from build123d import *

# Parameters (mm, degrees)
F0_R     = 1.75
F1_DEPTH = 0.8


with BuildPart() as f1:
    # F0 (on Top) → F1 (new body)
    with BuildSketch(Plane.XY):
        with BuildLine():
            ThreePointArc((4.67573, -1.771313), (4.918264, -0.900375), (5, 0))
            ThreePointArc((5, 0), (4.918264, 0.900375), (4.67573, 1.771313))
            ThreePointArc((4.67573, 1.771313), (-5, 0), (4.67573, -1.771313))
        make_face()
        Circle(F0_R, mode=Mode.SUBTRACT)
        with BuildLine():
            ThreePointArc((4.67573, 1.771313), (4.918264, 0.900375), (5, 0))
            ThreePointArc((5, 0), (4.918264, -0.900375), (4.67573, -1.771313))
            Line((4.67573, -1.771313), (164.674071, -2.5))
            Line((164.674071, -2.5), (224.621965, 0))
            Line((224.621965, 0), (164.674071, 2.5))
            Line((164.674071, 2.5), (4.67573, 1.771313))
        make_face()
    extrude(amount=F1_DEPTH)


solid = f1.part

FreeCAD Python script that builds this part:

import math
import FreeCAD as App
import Part
import Sketcher
from FreeCAD import Vector
Q = App.Units.Quantity

doc = App.newDocument("Part")
body = doc.addObject("PartDesign::Body", "Body")

# Sketch on XY plane
sketch1 = body.newObject("Sketcher::SketchObject", "Sketch")
sketch1.AttachmentSupport = (doc.getObject("XY_Plane"), [""])
sketch1.MapMode = "FlatFace"
sketch1.addGeometry([
    Part.ArcOfCircle(Part.Circle(Vector(0, 0, 0), Vector(0, 0, 1), 5), math.radians(21), math.radians(339)),  # 0
    Part.LineSegment(Vector(4.7, -1.8, 0), Vector(164.7, -2.5, 0)),  # 1
    Part.LineSegment(Vector(164.7, -2.5, 0), Vector(224.6, 0, 0)),  # 2
    Part.LineSegment(Vector(224.6, 0, 0), Vector(164.7, 2.5, 0)),  # 3
    Part.LineSegment(Vector(164.7, 2.5, 0), Vector(4.7, 1.8, 0)),  # 4
    Part.Circle(Vector(0, 0, 0), Vector(0, 0, 1), 1.8),  # 5
], False)
sketch1.addConstraint([
    Sketcher.Constraint("Coincident", 0, 2, 1, 1),
    Sketcher.Constraint("Coincident", 1, 2, 2, 1),
    Sketcher.Constraint("Coincident", 2, 2, 3, 1),
    Sketcher.Constraint("Coincident", 3, 2, 4, 1),
    Sketcher.Constraint("Coincident", 4, 2, 0, 1),
    Sketcher.Constraint("Coincident", 0, 3, -1, 1),
    Sketcher.Constraint("Coincident", 5, 3, -1, 1),
    Sketcher.Constraint("Symmetric", 1, 2, 3, 2, -1),
    Sketcher.Constraint("PointOnObject", 2, 2, -1),
    Sketcher.Constraint("Vertical", 0, 2, 4, 2),
    Sketcher.Constraint("Radius", 0, Q("5 mm")),
    Sketcher.Constraint("Diameter", 5, Q("3.5 mm")),
    Sketcher.Constraint("Distance", 1, Q("160 mm")),
    Sketcher.Constraint("Distance", 2, Q("60 mm")),
    Sketcher.Constraint("DistanceY", 1, 2, 3, 2, Q("5 mm")),
    Sketcher.Constraint("DistanceX", -1, 1, 0, 2, Q("4.67573 mm")),
])
pad1 = body.newObject("PartDesign::Pad", "Pad")
pad1.Profile = sketch1
pad1.Length = 0.8

doc.recompute()
